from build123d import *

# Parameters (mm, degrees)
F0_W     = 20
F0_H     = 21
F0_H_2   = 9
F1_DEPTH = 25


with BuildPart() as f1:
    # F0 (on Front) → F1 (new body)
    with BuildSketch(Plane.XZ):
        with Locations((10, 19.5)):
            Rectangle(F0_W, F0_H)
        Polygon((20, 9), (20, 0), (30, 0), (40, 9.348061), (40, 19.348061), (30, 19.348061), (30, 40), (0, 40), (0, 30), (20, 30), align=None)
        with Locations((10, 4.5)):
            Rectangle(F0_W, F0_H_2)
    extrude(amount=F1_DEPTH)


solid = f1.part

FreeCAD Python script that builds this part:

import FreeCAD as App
import Part
import Sketcher

doc = App.newDocument("Part")
body = doc.addObject("PartDesign::Body", "Body")

# Sketch on XZ plane
sketch1 = doc.addObject("Sketcher::SketchObject", "Sketch")
body.addObject(sketch1)
sketch1.AttachmentSupport = (doc.XZ_Plane, [""])
sketch1.MapMode = "FlatFace"
sketch1.addGeometry(Part.LineSegment(App.Vector(30, 0, 0), App.Vector(40, 9, 0)), False)
sketch1.addGeometry(Part.LineSegment(App.Vector(40, 9, 0), App.Vector(40, 19, 0)), False)
sketch1.addGeometry(Part.LineSegment(App.Vector(40, 19, 0), App.Vector(30, 19, 0)), False)
sketch1.addGeometry(Part.LineSegment(App.Vector(30, 19, 0), App.Vector(30, 40, 0)), False)
sketch1.addGeometry(Part.LineSegment(App.Vector(30, 40, 0), App.Vector(0, 40, 0)), False)
sketch1.addGeometry(Part.LineSegment(App.Vector(0, 40, 0), App.Vector(0, 0, 0)), False)
sketch1.addGeometry(Part.LineSegment(App.Vector(0, 0, 0), App.Vector(30, 0, 0)), False)
sketch1.addConstraint(Sketcher.Constraint("Coincident", 0, 2, 1, 1))
sketch1.addConstraint(Sketcher.Constraint("Coincident", 1, 2, 2, 1))
sketch1.addConstraint(Sketcher.Constraint("Coincident", 2, 2, 3, 1))
sketch1.addConstraint(Sketcher.Constraint("Coincident", 3, 2, 4, 1))
sketch1.addConstraint(Sketcher.Constraint("Coincident", 4, 2, 5, 1))
sketch1.addConstraint(Sketcher.Constraint("Coincident", 5, 2, 6, 1))
sketch1.addConstraint(Sketcher.Constraint("Coincident", 6, 2, 0, 1))
sketch1.addConstraint(Sketcher.Constraint("Vertical", 1))
sketch1.addConstraint(Sketcher.Constraint("Horizontal", 2))
sketch1.addConstraint(Sketcher.Constraint("Vertical", 3))
sketch1.addConstraint(Sketcher.Constraint("Horizontal", 4))
sketch1.addConstraint(Sketcher.Constraint("Vertical", 5))
sketch1.addConstraint(Sketcher.Constraint("Horizontal", 6))
sketch1.addConstraint(Sketcher.Constraint("Coincident", 5, 2, -1, 1))
sketch1.addConstraint(Sketcher.Constraint("Vertical", 3, 2, 6, 2))
sketch1.addConstraint(Sketcher.Constraint("Equal", 2, 1))
sketch1.addConstraint(Sketcher.Constraint("DistanceX", 2, 2, 2, 1, 10.0))
sketch1.addConstraint(Sketcher.Constraint("DistanceX", 4, 2, 4, 1, 30.0))
sketch1.addConstraint(Sketcher.Constraint("DistanceY", 5, 2, 5, 1, 40.0))
sketch1.addConstraint(Sketcher.Constraint("DistanceY", 3, 1, 3, 2, 20.651939))
pad1 = doc.addObject("PartDesign::Pad", "Pad")
body.addObject(pad1)
pad1.Profile = sketch1
pad1.Length = 25

doc.recompute()
